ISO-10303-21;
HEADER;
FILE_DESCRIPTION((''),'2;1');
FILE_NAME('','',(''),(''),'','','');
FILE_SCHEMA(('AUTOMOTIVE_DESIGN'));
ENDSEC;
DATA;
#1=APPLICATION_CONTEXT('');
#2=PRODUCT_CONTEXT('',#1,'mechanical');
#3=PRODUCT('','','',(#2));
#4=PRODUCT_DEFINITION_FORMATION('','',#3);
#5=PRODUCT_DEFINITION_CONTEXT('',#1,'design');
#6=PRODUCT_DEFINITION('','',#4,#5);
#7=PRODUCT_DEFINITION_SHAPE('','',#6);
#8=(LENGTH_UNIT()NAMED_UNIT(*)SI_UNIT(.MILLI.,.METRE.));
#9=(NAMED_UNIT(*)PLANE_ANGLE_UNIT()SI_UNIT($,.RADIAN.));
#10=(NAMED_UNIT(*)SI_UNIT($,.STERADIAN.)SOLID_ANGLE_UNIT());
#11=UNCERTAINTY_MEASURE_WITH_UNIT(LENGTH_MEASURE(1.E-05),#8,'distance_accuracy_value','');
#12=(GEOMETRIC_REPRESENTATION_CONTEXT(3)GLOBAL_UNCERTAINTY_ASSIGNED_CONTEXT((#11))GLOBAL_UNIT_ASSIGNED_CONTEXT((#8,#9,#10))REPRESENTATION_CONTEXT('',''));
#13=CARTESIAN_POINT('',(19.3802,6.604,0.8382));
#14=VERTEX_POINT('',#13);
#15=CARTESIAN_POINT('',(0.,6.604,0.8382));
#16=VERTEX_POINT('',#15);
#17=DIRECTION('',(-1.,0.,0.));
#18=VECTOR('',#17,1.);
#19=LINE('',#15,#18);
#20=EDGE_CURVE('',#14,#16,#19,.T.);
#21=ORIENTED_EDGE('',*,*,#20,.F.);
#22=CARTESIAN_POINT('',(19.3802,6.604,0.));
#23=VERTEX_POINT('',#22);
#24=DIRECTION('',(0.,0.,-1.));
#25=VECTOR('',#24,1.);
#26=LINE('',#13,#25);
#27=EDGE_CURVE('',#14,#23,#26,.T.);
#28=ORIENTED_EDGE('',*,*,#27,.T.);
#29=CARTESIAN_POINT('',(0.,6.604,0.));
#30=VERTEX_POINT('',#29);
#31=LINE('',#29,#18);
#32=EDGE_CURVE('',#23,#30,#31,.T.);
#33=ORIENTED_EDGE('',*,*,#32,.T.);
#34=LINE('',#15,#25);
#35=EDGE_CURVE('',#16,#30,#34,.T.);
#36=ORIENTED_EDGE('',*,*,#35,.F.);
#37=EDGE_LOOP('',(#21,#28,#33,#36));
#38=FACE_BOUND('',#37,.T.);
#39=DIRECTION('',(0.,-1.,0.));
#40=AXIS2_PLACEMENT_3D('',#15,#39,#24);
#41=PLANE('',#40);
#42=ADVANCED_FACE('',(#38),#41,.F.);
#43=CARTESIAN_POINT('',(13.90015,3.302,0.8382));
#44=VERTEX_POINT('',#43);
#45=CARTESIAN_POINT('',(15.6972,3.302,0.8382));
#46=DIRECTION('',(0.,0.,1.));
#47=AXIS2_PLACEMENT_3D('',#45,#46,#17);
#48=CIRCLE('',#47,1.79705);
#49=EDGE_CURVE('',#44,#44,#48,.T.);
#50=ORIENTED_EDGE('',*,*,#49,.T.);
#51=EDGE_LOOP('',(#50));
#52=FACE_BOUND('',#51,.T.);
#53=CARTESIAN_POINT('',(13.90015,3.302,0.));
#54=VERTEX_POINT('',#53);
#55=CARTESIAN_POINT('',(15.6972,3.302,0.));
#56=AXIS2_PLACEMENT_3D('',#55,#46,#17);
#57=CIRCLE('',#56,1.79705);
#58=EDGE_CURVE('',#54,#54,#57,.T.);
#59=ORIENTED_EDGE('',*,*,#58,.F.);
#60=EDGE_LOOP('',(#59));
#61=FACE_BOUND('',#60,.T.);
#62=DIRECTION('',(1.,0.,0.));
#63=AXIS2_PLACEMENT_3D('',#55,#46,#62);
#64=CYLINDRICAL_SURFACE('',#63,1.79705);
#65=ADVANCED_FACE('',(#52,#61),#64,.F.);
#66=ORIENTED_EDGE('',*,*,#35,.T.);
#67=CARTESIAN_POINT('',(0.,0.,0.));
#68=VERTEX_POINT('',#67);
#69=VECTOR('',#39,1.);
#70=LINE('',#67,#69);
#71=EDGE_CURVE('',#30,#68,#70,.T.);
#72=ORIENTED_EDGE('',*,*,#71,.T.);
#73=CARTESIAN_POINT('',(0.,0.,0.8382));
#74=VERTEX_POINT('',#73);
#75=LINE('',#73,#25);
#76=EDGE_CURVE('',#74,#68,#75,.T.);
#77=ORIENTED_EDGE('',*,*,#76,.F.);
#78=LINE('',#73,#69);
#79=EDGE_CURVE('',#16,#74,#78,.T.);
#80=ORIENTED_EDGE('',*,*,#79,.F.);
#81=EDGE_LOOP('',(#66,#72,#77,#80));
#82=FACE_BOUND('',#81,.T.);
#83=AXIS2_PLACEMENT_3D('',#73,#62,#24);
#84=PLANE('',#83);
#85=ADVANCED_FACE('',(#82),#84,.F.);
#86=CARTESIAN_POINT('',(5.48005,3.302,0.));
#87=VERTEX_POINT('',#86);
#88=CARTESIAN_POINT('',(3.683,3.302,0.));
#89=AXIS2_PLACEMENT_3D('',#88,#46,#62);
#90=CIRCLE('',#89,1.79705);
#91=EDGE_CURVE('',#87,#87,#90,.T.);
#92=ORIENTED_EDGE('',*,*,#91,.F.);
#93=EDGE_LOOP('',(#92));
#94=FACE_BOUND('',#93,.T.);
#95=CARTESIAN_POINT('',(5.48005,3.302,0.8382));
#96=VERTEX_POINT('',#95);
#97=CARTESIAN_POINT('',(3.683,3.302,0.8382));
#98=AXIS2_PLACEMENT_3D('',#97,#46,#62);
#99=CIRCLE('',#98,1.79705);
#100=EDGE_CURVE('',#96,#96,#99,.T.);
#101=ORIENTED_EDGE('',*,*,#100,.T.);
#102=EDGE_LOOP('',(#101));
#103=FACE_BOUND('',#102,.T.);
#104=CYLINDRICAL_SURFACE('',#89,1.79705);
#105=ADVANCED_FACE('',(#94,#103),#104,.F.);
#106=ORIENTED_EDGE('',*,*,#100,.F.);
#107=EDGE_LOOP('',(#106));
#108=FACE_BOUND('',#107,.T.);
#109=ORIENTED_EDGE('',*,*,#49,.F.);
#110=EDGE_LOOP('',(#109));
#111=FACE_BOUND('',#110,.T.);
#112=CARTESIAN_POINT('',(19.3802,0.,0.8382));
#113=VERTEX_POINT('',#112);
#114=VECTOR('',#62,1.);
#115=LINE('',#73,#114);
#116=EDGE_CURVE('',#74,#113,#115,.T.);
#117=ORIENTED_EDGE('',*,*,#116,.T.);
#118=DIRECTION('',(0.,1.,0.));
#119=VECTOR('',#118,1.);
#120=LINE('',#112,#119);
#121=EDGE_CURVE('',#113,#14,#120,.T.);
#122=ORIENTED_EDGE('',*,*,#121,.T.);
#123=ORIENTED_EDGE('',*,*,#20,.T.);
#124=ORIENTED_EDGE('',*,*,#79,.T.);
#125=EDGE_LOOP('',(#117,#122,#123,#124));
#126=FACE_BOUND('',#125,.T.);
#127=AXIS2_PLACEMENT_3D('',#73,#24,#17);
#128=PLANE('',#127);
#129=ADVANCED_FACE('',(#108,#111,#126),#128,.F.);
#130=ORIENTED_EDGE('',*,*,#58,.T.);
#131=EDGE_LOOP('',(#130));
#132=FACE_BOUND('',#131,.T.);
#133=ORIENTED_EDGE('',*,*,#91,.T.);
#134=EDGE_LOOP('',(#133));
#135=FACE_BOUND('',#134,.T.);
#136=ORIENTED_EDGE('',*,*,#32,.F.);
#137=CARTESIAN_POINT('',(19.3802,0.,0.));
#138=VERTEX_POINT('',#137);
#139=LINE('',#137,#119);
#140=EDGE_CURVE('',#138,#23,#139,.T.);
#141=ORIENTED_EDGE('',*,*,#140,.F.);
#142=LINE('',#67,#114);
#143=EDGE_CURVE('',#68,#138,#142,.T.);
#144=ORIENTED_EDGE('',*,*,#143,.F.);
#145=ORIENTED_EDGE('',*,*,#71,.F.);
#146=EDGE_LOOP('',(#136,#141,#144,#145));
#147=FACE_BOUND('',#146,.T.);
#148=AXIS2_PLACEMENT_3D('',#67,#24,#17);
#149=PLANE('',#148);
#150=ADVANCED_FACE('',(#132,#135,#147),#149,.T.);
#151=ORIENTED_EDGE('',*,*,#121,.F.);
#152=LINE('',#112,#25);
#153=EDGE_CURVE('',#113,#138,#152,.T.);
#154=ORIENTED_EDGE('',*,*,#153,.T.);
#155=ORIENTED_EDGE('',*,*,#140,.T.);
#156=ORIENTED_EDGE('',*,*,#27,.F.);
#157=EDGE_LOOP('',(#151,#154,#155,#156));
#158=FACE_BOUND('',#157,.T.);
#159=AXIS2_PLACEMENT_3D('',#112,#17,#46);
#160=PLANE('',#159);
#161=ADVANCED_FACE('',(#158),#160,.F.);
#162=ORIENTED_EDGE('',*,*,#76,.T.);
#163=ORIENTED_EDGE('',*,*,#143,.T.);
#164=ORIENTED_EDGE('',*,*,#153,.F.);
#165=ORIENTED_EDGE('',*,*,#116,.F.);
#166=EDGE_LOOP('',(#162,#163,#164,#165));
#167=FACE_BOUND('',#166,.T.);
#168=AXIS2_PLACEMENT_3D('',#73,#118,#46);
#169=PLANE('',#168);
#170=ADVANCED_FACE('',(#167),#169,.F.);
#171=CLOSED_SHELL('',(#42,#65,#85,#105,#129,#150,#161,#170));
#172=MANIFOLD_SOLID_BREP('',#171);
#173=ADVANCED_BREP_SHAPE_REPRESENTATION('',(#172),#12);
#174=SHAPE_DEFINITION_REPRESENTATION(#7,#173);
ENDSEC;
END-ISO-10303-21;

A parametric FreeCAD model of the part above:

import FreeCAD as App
import Part
import Sketcher
from FreeCAD import Vector
Q = App.Units.Quantity

doc = App.newDocument("Part")
body = doc.addObject("PartDesign::Body", "Body")

sketch1 = doc.addObject("Sketcher::SketchObject", "Sketch")
body.addObject(sketch1)
sketch1.AttachmentSupport = (doc.XY_Plane, [""])
sketch1.MapMode = "FlatFace"
sketch1.addGeometry([
    Part.LineSegment(Vector(0, 6.604, 0), Vector(0, 0, 0)),
    Part.LineSegment(Vector(0, 0, 0), Vector(19.3802, 0, 0)),
    Part.LineSegment(Vector(19.3802, 0, 0), Vector(19.3802, 6.604, 0)),
    Part.LineSegment(Vector(19.3802, 6.604, 0), Vector(0, 6.604, 0)),
], False)
sketch1.addConstraint([
    Sketcher.Constraint("Coincident", 0, 2, 1, 1),
    Sketcher.Constraint("Coincident", 1, 2, 2, 1),
    Sketcher.Constraint("Coincident", 2, 2, 3, 1),
    Sketcher.Constraint("Coincident", 3, 2, 0, 1),
    Sketcher.Constraint("Vertical", 0),
    Sketcher.Constraint("Horizontal", 1),
    Sketcher.Constraint("Vertical", 2),
    Sketcher.Constraint("Horizontal", 3),
    Sketcher.Constraint("Coincident", 0, 2, -1, 1),
    Sketcher.Constraint("DistanceY", 0, 2, 0, 1, Q("0.26 in")),
    Sketcher.Constraint("DistanceX", 1, 1, 1, 2, Q("0.763 in")),
])
pad1 = doc.addObject("PartDesign::Pad", "Pad")
body.addObject(pad1)
pad1.Profile = sketch1
pad1.Length = Q("0.033 in")

sketch2 = doc.addObject("Sketcher::SketchObject", "Sketch001")
body.addObject(sketch2)
sketch2.AttachmentSupport = (doc.XY_Plane, [""])
sketch2.MapMode = "FlatFace"
sketch2.AttachmentOffset = App.Placement(Vector(0, 0, 0.033 * 25.4), App.Rotation())
sketch2.addGeometry([
    Part.Circle(Vector(3.683, 3.302, 0), Vector(0, 0, 1), 1.79705),
    Part.Circle(Vector(15.6972, 3.302, 0), Vector(0, 0, 1), 1.79705),
], False)
sketch2.addConstraint([
    Sketcher.Constraint("Equal", 0, 1),
    Sketcher.Constraint("Horizontal", 0, 3, 1, 3),
    Sketcher.Constraint("Diameter", 0, Q("0.1415 in")),
    Sketcher.Constraint("DistanceY", -1, 1, 0, 3, Q("0.13 in")),
    Sketcher.Constraint("DistanceX", -1, 1, 0, 3, Q("0.145 in")),
    Sketcher.Constraint("DistanceX", -1, 1, 1, 3, Q("0.618 in")),
])
pocket1 = doc.addObject("PartDesign::Pocket", "Pocket")
body.addObject(pocket1)
pocket1.Profile = sketch2
pocket1.Length = Q("0.033 in")

doc.recompute()
